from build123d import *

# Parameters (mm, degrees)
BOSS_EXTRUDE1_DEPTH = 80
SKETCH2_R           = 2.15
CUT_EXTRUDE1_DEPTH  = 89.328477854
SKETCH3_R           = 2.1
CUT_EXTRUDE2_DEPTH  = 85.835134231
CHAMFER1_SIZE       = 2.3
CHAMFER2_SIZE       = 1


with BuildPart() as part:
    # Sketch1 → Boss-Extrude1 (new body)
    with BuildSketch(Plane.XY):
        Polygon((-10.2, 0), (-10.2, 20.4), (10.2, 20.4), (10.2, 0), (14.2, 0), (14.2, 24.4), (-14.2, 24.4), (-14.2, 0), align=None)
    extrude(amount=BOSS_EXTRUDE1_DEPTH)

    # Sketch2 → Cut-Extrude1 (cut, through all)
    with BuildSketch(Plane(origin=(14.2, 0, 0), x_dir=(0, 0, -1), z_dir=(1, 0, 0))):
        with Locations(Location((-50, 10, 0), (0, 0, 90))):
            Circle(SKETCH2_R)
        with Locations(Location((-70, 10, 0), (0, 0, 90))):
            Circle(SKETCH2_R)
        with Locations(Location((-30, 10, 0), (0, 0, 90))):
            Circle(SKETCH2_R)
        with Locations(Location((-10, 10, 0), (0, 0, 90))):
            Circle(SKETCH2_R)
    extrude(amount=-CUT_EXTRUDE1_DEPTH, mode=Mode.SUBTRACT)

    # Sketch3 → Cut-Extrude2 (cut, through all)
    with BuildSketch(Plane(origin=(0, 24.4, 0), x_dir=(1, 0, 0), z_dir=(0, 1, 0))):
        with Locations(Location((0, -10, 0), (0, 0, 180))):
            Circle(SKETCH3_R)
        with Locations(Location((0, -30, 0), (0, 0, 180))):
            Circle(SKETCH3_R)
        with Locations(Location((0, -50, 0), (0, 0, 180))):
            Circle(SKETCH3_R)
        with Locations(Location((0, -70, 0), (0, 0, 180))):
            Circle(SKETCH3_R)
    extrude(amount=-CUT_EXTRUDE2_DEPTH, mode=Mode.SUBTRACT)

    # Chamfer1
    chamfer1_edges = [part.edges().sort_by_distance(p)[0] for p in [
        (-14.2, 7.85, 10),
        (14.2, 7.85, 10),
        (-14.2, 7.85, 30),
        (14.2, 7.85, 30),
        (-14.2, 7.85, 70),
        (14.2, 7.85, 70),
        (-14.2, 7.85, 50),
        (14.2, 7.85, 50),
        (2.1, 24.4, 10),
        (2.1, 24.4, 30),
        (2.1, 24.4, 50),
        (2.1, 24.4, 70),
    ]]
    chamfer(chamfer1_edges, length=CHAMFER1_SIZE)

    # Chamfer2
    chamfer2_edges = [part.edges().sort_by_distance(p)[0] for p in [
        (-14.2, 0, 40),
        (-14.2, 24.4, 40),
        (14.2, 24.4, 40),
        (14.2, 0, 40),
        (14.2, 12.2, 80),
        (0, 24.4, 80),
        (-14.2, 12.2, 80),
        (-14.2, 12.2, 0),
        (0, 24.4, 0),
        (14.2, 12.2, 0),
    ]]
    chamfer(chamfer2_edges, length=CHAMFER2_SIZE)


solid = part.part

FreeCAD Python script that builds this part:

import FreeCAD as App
import Part
import Sketcher
from FreeCAD import Vector


def edges_at(feature, points):
    """Names of the edges that pass closest to the given points."""
    edges = feature.Shape.Edges
    near = lambda p: min(range(len(edges)), key=lambda i: edges[i].distToShape(Part.Vertex(*p))[0])
    return sorted({f"Edge{near(p) + 1}" for p in points})

doc = App.newDocument("Part")
body = doc.addObject("PartDesign::Body", "Body")

# Sketch on XY plane
sketch1 = body.newObject("Sketcher::SketchObject", "Sketch")
sketch1.AttachmentSupport = (doc.getObject("XY_Plane"), [""])
sketch1.MapMode = "FlatFace"
sketch1.addGeometry(Part.LineSegment(Vector(-10.2, 0, 0), Vector(-10.2, 20.4, 0)), False)
sketch1.addGeometry(Part.LineSegment(Vector(-10.2, 20.4, 0), Vector(10.2, 20.4, 0)), False)
sketch1.addGeometry(Part.LineSegment(Vector(10.2, 20.4, 0), Vector(10.2, 0, 0)), False)
sketch1.addGeometry(Part.LineSegment(Vector(10.2, 0, 0), Vector(14.2, 0, 0)), False)
sketch1.addGeometry(Part.LineSegment(Vector(14.2, 0, 0), Vector(14.2, 24.4, 0)), False)
sketch1.addGeometry(Part.LineSegment(Vector(14.2, 24.4, 0), Vector(-14.2, 24.4, 0)), False)
sketch1.addGeometry(Part.LineSegment(Vector(-14.2, 24.4, 0), Vector(-14.2, 0, 0)), False)
sketch1.addGeometry(Part.LineSegment(Vector(-14.2, 0, 0), Vector(-10.2, 0, 0)), False)
sketch1.addConstraint(Sketcher.Constraint("Coincident", 0, 2, 1, 1))
sketch1.addConstraint(Sketcher.Constraint("Coincident", 1, 2, 2, 1))
sketch1.addConstraint(Sketcher.Constraint("Coincident", 2, 2, 3, 1))
sketch1.addConstraint(Sketcher.Constraint("Coincident", 3, 2, 4, 1))
sketch1.addConstraint(Sketcher.Constraint("Coincident", 4, 2, 5, 1))
sketch1.addConstraint(Sketcher.Constraint("Coincident", 5, 2, 6, 1))
sketch1.addConstraint(Sketcher.Constraint("Coincident", 6, 2, 7, 1))
sketch1.addConstraint(Sketcher.Constraint("Coincident", 7, 2, 0, 1))
sketch1.addConstraint(Sketcher.Constraint("Vertical", 0))
sketch1.addConstraint(Sketcher.Constraint("Horizontal", 1))
sketch1.addConstraint(Sketcher.Constraint("Vertical", 2))
sketch1.addConstraint(Sketcher.Constraint("Horizontal", 3))
sketch1.addConstraint(Sketcher.Constraint("Vertical", 4))
sketch1.addConstraint(Sketcher.Constraint("Horizontal", 5))
sketch1.addConstraint(Sketcher.Constraint("Vertical", 6))
sketch1.addConstraint(Sketcher.Constraint("Horizontal", 7))
sketch1.addConstraint(Sketcher.Constraint("Symmetric", 3, 2, 6, 2, -1, 1))
sketch1.addConstraint(Sketcher.Constraint("Symmetric", 2, 2, 7, 2, -2))
sketch1.addConstraint(Sketcher.Constraint("Equal", 1, 0))
sketch1.addConstraint(Sketcher.Constraint("DistanceX", 3, 1, 3, 2, 4.0))
sketch1.addConstraint(Sketcher.Constraint("DistanceX", 1, 1, 1, 2, 20.4))
sketch1.addConstraint(Sketcher.Constraint("DistanceY", 4, 1, 4, 2, 24.4))
pad1 = body.newObject("PartDesign::Pad", "Pad")
pad1.Profile = sketch1
pad1.Length = 80

# Sketch on YZ plane
sketch2 = body.newObject("Sketcher::SketchObject", "Sketch001")
sketch2.AttachmentSupport = (doc.getObject("YZ_Plane"), [""])
sketch2.MapMode = "FlatFace"
sketch2.AttachmentOffset = App.Placement(Vector(0, 0, 14.2), App.Rotation())
sketch2.addGeometry(Part.Circle(Vector(10, 50, 0), Vector(0, 0, 1), 2.1), False)
sketch2.addGeometry(Part.Circle(Vector(10, 70, 0), Vector(0, 0, 1), 2.1), False)
sketch2.addGeometry(Part.Circle(Vector(10, 30, 0), Vector(0, 0, 1), 2.1), False)
sketch2.addGeometry(Part.Circle(Vector(10, 10, 0), Vector(0, 0, 1), 2.1), False)
sketch2.addConstraint(Sketcher.Constraint("Equal", 0, 1))
sketch2.addConstraint(Sketcher.Constraint("Equal", 1, 2))
sketch2.addConstraint(Sketcher.Constraint("Equal", 2, 3))
sketch2.addConstraint(Sketcher.Constraint("Vertical", 0, 3, 1, 3))
sketch2.addConstraint(Sketcher.Constraint("Vertical", 1, 3, 2, 3))
sketch2.addConstraint(Sketcher.Constraint("Vertical", 2, 3, 3, 3))
sketch2.addConstraint(Sketcher.Constraint("Diameter", 0, 4.3))
sketch2.addConstraint(Sketcher.Constraint("DistanceX", -1, 1, 0, 3, 10.0))
sketch2.addConstraint(Sketcher.Constraint("DistanceY", -1, 1, 0, 3, 50.0))
sketch2.addConstraint(Sketcher.Constraint("DistanceY", -1, 1, 1, 3, 70.0))
sketch2.addConstraint(Sketcher.Constraint("DistanceY", -1, 1, 2, 3, 30.0))
sketch2.addConstraint(Sketcher.Constraint("DistanceY", -1, 1, 3, 3, 10.0))
pocket1 = body.newObject("PartDesign::Pocket", "Pocket")
pocket1.Profile = sketch2
pocket1.Type = "ThroughAll"

# Sketch on XZ plane
sketch3 = body.newObject("Sketcher::SketchObject", "Sketch002")
sketch3.AttachmentSupport = (doc.getObject("XZ_Plane"), [""])
sketch3.MapMode = "FlatFace"
sketch3.AttachmentOffset = App.Placement(Vector(0, 0, -24.4), App.Rotation())
sketch3.addGeometry(Part.Circle(Vector(0, 10, 0), Vector(0, 0, 1), 2.1), False)
sketch3.addGeometry(Part.Circle(Vector(0, 30, 0), Vector(0, 0, 1), 2.1), False)
sketch3.addGeometry(Part.Circle(Vector(0, 50, 0), Vector(0, 0, 1), 2.1), False)
sketch3.addGeometry(Part.Circle(Vector(0, 70, 0), Vector(0, 0, 1), 2.1), False)
sketch3.addConstraint(Sketcher.Constraint("Equal", 0, 1))
sketch3.addConstraint(Sketcher.Constraint("Equal", 1, 2))
sketch3.addConstraint(Sketcher.Constraint("Equal", 2, 3))
sketch3.addConstraint(Sketcher.Constraint("PointOnObject", 0, 3, -2))
sketch3.addConstraint(Sketcher.Constraint("PointOnObject", 1, 3, -2))
sketch3.addConstraint(Sketcher.Constraint("PointOnObject", 2, 3, -2))
sketch3.addConstraint(Sketcher.Constraint("PointOnObject", 3, 3, -2))
sketch3.addConstraint(Sketcher.Constraint("Diameter", 0, 4.2))
sketch3.addConstraint(Sketcher.Constraint("DistanceY", -1, 1, 0, 3, 10.0))
sketch3.addConstraint(Sketcher.Constraint("DistanceY", -1, 1, 1, 3, 30.0))
sketch3.addConstraint(Sketcher.Constraint("DistanceY", -1, 1, 2, 3, 50.0))
sketch3.addConstraint(Sketcher.Constraint("DistanceY", -1, 1, 3, 3, 70.0))
pocket2 = body.newObject("PartDesign::Pocket", "Pocket001")
pocket2.Profile = sketch3
pocket2.Type = "ThroughAll"
pocket2.Reversed = True
doc.recompute()

chamfer = body.newObject("PartDesign::Chamfer", "Chamfer")
chamfer.Base = (pocket2, edges_at(pocket2, [
    (-14.2, 7.85, 10),
    (14.2, 7.85, 10),
    (-14.2, 7.85, 30),
    (14.2, 7.85, 30),
    (-14.2, 7.85, 70),
    (14.2, 7.85, 70),
    (-14.2, 7.85, 50),
    (14.2, 7.85, 50),
    (2.1, 24.4, 10),
    (2.1, 24.4, 30),
    (2.1, 24.4, 50),
    (2.1, 24.4, 70),
]))
chamfer.Size = 2.3
doc.recompute()

chamfer2 = body.newObject("PartDesign::Chamfer", "Chamfer001")
chamfer2.Base = (chamfer, edges_at(chamfer, [
    (-14.2, 0, 40),
    (-14.2, 24.4, 40),
    (14.2, 24.4, 40),
    (14.2, 0, 40),
    (14.2, 12.2, 80),
    (0, 24.4, 80),
    (-14.2, 12.2, 80),
    (-14.2, 12.2, 0),
    (0, 24.4, 0),
    (14.2, 12.2, 0),
]))
chamfer2.Size = 1

doc.recompute()
